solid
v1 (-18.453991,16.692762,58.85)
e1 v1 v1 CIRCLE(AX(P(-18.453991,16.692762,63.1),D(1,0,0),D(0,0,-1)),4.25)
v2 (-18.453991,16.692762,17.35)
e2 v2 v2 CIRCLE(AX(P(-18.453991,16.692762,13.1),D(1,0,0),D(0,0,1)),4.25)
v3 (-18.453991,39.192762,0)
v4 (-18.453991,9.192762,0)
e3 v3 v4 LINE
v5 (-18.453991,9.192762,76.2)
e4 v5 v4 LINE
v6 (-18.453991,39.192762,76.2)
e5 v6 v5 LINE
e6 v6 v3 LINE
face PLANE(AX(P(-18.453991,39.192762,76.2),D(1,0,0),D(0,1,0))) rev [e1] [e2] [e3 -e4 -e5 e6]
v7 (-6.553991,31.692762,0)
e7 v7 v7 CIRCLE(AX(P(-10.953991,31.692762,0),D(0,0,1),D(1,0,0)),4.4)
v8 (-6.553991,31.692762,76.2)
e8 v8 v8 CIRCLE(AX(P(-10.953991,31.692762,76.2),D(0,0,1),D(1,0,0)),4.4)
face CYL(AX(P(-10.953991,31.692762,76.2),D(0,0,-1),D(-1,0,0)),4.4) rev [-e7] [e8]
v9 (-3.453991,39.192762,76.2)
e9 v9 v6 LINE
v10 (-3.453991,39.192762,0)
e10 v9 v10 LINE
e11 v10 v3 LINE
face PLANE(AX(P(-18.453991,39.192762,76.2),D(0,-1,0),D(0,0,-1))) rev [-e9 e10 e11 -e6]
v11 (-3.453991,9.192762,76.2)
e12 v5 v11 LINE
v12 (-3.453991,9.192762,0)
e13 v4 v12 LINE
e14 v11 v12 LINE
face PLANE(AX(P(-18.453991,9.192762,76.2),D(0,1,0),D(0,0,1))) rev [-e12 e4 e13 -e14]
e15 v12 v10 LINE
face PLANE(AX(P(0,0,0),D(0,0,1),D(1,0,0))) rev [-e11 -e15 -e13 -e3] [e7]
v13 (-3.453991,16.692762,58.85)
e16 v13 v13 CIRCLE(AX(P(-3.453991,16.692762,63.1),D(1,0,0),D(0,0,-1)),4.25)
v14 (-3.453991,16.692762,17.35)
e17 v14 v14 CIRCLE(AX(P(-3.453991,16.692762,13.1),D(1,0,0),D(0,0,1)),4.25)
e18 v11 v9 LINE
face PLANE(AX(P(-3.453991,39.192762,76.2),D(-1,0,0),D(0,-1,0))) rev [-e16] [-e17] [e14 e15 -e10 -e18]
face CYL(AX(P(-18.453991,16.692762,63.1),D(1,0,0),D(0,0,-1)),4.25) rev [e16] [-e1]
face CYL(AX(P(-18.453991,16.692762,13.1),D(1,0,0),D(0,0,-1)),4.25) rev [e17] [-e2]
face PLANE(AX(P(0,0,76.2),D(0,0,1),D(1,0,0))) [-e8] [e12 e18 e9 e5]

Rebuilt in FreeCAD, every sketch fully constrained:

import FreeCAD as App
import Part
import Sketcher

V = App.Vector
Q = App.Units.Quantity


def add_polygon(sketch, points):
    """Adds a closed chain of lines whose ends are joined by coincident constraints."""
    first, n = sketch.GeometryCount, len(points)
    for a, b in zip(points, points[1:] + points[:1]):
        sketch.addGeometry(Part.LineSegment(App.Vector(*a, 0), App.Vector(*b, 0)), False)
    for i in range(n):
        sketch.addConstraint(Sketcher.Constraint("Coincident", first + i, 2, first + (i + 1) % n, 1))

doc = App.newDocument("Part")
body = doc.addObject("PartDesign::Body", "Body")

sketch1 = body.newObject("Sketcher::SketchObject", "Sketch")
sketch1.AttachmentSupport = (doc.getObject("XY_Plane"), [""])
sketch1.MapMode = "FlatFace"
add_polygon(sketch1, [(-18.453991, 39.192762), (-18.453991, 9.192762), (-3.453991, 9.192762), (-3.453991, 39.192762)])
sketch1.addGeometry(Part.Circle(V(-10.953991, 31.692762, 0), V(0, 0, 1), 4.4), False)
sketch1.addConstraint(Sketcher.Constraint("Vertical", 0))
sketch1.addConstraint(Sketcher.Constraint("Horizontal", 1))
sketch1.addConstraint(Sketcher.Constraint("Vertical", 2))
sketch1.addConstraint(Sketcher.Constraint("Horizontal", 3))
sketch1.addConstraint(Sketcher.Constraint("Diameter", 4, Q("8.8 mm")))
sketch1.addConstraint(Sketcher.Constraint("DistanceX", 1, 1, 1, 2, Q("15 mm")))
sketch1.addConstraint(Sketcher.Constraint("DistanceY", 0, 2, 0, 1, Q("30 mm")))
sketch1.addConstraint(Sketcher.Constraint("DistanceX", 0, 2, 4, 3, Q("7.5 mm")))
sketch1.addConstraint(Sketcher.Constraint("DistanceY", 0, 2, 4, 3, Q("22.5 mm")))
sketch1.addConstraint(Sketcher.Constraint("DistanceX", 4, 3, -1, 1, Q("10.953991 mm")))
sketch1.addConstraint(Sketcher.Constraint("DistanceY", -1, 1, 4, 3, Q("31.692762 mm")))
pad1 = body.newObject("PartDesign::Pad", "Pad")
pad1.Profile = sketch1
pad1.Length = 76.2

sketch2 = body.newObject("Sketcher::SketchObject", "Sketch001")
sketch2.AttachmentSupport = (doc.getObject("YZ_Plane"), [""])
sketch2.MapMode = "FlatFace"
sketch2.AttachmentOffset = App.Placement(V(0, 0, -3.453991), App.Rotation())
sketch2.addGeometry(Part.Circle(V(16.692762, 63.1, 0), V(0, 0, 1), 4.25), False)
sketch2.addGeometry(Part.Circle(V(16.692762, 13.1, 0), V(0, 0, 1), 4.25), False)
sketch2.addConstraint(Sketcher.Constraint("Equal", 0, 1))
sketch2.addConstraint(Sketcher.Constraint("Vertical", 0, 3, 1, 3))
sketch2.addConstraint(Sketcher.Constraint("Diameter", 0, Q("8.5 mm")))
sketch2.addConstraint(Sketcher.Constraint("DistanceY", 1, 3, 0, 3, Q("50 mm")))
sketch2.addConstraint(Sketcher.Constraint("DistanceY", -1, 1, 0, 3, Q("63.1 mm")))
sketch2.addConstraint(Sketcher.Constraint("DistanceX", -1, 1, 0, 3, Q("16.692762 mm")))
pocket1 = body.newObject("PartDesign::Pocket", "Pocket")
pocket1.Profile = sketch2
pocket1.Type = "ThroughAll"

doc.recompute()
